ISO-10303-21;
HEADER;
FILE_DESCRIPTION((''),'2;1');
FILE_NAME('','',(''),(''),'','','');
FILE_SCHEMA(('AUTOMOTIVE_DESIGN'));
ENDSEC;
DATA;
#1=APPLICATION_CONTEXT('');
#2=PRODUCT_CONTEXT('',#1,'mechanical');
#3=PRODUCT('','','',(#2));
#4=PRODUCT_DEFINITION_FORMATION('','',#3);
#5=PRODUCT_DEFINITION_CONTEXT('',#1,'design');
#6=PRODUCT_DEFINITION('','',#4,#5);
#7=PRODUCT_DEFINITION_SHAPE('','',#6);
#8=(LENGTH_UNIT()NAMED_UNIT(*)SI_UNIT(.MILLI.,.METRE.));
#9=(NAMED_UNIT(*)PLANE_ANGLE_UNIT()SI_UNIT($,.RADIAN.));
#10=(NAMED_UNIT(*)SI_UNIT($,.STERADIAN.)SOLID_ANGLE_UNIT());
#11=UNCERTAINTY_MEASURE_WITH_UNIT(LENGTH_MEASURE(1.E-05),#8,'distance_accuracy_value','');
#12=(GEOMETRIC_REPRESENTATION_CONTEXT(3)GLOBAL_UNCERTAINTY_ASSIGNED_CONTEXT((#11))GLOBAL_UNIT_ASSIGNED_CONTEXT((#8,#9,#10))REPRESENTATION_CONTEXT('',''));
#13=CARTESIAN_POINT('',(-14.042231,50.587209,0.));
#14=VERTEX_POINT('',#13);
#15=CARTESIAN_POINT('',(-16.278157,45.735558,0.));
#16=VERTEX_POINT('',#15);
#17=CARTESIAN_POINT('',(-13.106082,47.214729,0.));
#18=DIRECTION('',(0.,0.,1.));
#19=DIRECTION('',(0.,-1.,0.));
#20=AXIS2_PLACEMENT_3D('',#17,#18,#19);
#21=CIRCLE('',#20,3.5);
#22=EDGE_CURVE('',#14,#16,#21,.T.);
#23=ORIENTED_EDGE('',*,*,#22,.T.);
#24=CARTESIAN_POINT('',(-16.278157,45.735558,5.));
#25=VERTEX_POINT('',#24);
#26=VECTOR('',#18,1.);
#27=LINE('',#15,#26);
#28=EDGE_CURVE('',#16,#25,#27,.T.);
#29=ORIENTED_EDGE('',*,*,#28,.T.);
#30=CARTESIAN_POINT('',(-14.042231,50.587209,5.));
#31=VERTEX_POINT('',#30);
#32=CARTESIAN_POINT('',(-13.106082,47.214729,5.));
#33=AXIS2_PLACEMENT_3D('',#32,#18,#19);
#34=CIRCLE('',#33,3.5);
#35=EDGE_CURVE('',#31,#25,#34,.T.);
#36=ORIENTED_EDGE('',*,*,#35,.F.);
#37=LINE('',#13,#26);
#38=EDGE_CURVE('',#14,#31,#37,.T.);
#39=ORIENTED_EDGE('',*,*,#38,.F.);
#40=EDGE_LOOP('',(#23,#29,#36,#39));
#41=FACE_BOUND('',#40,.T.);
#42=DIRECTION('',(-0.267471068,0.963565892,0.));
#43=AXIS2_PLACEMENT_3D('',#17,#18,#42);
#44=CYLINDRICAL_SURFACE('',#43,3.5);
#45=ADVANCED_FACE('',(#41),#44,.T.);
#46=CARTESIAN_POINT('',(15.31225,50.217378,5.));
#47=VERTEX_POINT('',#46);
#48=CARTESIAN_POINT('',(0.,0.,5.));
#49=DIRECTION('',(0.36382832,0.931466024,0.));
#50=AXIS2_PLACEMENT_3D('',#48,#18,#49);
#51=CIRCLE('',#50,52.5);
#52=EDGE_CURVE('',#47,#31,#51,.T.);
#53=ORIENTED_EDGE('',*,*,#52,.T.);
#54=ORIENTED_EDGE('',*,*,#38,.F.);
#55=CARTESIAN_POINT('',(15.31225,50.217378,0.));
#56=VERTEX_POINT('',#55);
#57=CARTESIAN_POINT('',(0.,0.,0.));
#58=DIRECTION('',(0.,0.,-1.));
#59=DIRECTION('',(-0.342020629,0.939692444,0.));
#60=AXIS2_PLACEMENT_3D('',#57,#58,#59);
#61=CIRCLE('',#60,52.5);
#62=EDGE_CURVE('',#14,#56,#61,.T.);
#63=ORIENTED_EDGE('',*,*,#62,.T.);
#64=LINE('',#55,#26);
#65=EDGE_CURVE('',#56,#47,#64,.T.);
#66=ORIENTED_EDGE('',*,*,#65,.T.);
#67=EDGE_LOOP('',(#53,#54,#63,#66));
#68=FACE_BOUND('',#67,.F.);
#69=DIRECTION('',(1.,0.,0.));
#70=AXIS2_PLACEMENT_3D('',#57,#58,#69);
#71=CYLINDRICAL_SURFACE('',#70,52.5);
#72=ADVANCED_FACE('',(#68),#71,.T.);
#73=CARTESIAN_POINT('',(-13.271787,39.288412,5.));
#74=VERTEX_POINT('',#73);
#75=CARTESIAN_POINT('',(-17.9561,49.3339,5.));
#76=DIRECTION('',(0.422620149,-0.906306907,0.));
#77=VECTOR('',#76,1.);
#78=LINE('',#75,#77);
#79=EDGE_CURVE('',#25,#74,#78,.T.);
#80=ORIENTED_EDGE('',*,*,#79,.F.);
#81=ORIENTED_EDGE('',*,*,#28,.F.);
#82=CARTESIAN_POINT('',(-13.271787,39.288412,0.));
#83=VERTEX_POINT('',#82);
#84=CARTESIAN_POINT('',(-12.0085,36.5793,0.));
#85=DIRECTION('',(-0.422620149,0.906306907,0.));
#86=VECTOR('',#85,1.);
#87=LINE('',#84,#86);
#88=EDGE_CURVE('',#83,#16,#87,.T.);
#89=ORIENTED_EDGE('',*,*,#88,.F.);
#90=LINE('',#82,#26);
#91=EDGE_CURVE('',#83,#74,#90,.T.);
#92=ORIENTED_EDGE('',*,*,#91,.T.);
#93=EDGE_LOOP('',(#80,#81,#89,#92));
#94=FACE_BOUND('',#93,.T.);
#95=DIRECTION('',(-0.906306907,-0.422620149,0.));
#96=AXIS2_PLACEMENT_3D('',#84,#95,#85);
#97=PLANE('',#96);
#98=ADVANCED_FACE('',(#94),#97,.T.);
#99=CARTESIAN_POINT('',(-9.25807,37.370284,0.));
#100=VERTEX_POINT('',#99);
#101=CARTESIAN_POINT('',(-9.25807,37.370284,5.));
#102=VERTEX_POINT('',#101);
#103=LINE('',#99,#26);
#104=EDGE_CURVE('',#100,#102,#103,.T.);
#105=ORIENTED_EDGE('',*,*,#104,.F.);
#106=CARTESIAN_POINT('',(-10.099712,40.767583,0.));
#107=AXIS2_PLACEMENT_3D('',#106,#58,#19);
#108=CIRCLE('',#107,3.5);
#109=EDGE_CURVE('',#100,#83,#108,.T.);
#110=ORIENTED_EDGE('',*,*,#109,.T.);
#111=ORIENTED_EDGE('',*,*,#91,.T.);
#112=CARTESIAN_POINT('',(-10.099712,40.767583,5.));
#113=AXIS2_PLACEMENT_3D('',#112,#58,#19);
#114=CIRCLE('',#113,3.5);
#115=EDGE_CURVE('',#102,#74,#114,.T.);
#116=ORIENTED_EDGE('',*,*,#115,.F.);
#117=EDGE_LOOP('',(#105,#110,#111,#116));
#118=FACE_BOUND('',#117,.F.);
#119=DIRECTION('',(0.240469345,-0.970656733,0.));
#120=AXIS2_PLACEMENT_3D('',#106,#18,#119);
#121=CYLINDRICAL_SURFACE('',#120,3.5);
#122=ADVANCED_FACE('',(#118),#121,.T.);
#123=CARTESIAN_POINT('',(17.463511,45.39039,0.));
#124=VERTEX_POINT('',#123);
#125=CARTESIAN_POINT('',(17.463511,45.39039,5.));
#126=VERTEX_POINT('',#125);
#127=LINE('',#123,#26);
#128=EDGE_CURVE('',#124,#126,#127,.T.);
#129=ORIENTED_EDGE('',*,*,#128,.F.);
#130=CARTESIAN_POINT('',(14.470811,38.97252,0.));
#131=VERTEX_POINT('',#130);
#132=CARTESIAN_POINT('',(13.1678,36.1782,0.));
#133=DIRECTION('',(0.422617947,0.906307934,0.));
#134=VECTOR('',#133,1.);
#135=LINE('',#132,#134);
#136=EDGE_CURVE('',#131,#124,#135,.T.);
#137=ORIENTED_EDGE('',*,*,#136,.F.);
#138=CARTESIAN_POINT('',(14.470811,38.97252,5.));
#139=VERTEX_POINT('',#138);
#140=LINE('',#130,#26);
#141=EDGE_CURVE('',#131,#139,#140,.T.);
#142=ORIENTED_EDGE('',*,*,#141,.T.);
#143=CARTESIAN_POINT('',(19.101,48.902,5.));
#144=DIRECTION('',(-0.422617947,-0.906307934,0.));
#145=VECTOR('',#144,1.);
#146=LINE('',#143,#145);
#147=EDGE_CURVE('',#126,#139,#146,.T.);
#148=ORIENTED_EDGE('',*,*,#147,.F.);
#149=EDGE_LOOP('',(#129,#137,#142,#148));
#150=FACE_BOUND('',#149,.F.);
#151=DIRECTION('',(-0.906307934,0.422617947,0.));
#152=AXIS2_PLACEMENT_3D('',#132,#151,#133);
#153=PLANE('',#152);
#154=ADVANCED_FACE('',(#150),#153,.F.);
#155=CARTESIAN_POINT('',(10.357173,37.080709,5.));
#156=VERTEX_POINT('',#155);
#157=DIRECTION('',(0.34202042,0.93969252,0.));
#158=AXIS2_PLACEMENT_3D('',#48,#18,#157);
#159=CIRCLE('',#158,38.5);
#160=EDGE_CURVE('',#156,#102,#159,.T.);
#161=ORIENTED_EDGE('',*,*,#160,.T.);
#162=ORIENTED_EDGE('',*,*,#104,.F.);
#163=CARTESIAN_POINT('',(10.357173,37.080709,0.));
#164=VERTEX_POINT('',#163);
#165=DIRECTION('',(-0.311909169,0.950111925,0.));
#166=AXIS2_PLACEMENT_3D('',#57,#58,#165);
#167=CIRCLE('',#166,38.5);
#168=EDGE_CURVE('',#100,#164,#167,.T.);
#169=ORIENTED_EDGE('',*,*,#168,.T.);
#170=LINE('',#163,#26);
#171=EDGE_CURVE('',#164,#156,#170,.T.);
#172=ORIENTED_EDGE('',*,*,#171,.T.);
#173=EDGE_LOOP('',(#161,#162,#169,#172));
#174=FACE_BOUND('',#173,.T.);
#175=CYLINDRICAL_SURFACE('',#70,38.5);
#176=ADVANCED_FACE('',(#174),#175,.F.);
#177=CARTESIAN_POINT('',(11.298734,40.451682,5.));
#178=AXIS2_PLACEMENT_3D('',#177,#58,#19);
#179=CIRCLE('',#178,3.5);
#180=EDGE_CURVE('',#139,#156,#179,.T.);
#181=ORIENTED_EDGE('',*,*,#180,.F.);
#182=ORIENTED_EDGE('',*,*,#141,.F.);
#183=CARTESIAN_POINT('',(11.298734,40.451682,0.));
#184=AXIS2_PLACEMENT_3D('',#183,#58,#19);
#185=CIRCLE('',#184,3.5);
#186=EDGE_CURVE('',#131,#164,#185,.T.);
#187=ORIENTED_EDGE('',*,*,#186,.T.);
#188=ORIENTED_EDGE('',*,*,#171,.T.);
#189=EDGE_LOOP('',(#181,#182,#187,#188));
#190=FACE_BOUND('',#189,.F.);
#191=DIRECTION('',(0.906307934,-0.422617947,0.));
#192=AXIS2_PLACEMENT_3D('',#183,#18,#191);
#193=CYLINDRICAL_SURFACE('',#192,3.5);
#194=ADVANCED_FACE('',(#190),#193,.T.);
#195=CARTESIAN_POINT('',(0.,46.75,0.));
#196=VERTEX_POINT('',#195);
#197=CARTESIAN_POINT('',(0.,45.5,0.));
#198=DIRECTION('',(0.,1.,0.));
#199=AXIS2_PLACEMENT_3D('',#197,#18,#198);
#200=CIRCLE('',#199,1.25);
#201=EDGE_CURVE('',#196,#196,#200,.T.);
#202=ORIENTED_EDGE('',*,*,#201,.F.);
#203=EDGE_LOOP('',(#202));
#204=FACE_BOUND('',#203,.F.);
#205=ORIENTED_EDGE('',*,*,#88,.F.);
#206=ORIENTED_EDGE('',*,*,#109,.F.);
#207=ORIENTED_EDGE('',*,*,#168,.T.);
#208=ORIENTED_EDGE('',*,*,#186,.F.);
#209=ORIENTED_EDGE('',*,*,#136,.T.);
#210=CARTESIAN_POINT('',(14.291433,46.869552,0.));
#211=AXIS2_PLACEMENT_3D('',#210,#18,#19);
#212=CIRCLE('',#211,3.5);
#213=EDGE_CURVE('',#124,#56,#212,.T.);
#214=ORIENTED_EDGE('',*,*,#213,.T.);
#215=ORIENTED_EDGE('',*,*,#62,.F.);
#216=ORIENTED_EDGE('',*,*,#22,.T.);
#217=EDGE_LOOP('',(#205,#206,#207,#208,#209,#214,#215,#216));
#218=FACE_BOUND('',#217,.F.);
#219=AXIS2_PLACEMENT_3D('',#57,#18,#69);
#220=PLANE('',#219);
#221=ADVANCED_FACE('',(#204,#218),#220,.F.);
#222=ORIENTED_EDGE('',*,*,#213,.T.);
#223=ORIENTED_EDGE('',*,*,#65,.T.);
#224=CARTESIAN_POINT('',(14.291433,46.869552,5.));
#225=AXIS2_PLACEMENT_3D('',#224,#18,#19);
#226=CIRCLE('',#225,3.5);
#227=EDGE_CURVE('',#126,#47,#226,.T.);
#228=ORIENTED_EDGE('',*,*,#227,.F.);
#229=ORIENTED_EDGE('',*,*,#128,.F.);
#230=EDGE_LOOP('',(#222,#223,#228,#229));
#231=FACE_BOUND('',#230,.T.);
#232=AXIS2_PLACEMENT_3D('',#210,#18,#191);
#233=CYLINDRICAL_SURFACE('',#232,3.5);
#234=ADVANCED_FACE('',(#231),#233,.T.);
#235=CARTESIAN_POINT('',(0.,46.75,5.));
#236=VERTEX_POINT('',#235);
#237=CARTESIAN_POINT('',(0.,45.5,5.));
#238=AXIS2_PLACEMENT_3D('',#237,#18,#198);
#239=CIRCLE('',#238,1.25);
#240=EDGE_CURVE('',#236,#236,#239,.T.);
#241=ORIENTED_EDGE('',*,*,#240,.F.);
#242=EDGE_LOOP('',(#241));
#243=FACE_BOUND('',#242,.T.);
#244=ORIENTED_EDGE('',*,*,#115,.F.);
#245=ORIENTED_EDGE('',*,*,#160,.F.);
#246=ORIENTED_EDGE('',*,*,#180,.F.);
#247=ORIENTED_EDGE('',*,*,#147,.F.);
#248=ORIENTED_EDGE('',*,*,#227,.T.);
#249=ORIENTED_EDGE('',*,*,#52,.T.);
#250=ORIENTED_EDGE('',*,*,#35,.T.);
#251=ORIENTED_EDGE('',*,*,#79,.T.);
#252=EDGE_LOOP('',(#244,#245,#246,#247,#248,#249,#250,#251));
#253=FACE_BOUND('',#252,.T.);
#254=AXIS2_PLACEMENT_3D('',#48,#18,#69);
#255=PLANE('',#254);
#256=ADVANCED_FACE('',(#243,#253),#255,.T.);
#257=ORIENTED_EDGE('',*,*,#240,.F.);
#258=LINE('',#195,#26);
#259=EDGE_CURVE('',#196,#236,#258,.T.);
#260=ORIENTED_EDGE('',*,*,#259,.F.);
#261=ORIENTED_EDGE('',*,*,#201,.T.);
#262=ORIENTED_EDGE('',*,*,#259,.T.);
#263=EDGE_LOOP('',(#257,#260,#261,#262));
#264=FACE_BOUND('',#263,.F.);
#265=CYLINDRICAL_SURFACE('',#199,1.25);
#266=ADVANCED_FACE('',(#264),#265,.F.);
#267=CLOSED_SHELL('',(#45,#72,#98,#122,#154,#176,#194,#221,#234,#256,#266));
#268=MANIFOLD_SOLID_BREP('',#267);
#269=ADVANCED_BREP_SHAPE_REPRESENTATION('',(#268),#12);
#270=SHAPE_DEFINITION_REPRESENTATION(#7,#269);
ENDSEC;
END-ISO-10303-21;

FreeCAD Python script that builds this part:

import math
import FreeCAD as App
import Part
import Sketcher
Q = App.Units.Quantity


def edges_at(feature, points):
    """Names of the edges that pass closest to the given points."""
    edges = feature.Shape.Edges
    near = lambda p: min(range(len(edges)), key=lambda i: edges[i].distToShape(Part.Vertex(*p))[0])
    return sorted({f"Edge{near(p) + 1}" for p in points})

doc = App.newDocument("Part")
body = doc.addObject("PartDesign::Body", "Body")

sketch1 = body.newObject("Sketcher::SketchObject", "Sketch")
sketch1.AttachmentSupport = (doc.getObject("XY_Plane"), [""])
sketch1.MapMode = "FlatFace"
sketch1.addGeometry([
    Part.LineSegment(App.Vector(13, 36, 0), App.Vector(19, 49, 0)),
    Part.ArcOfCircle(Part.Circle(App.Vector(0, 0, 0), App.Vector(0, 0, 1), 52), math.radians(69), math.radians(110)),
    Part.LineSegment(App.Vector(-18, 49, 0), App.Vector(-12, 37, 0)),
    Part.ArcOfCircle(Part.Circle(App.Vector(0, 0, 0), App.Vector(0, 0, 1), 38), math.radians(70), math.radians(108)),
], False)
sketch1.addConstraint([
    Sketcher.Constraint("Coincident", 0, 2, 1, 1),
    Sketcher.Constraint("Coincident", 1, 2, 2, 1),
    Sketcher.Constraint("Coincident", 2, 2, 3, 2),
    Sketcher.Constraint("Coincident", 3, 1, 0, 1),
    Sketcher.Constraint("Coincident", 1, 3, -1, 1),
    Sketcher.Constraint("Coincident", 3, 3, -1, 1),
    Sketcher.Constraint("Radius", 1, Q("52.5 mm")),
    Sketcher.Constraint("Radius", 3, Q("38.5 mm")),
    Sketcher.Constraint("Angle", 0, Q("65 deg")),
    Sketcher.Constraint("Angle", 2, Q("-65 deg")),
    Sketcher.Constraint("DistanceX", -1, 1, 0, 2, Q("19.101 mm")),
    Sketcher.Constraint("DistanceX", 1, 2, -1, 1, Q("17.956 mm")),
])
pad1 = body.newObject("PartDesign::Pad", "Pad")
pad1.Profile = sketch1
pad1.Length = 5

sketch2 = body.newObject("Sketcher::SketchObject", "Sketch001")
sketch2.AttachmentSupport = (doc.getObject("XY_Plane"), [""])
sketch2.MapMode = "FlatFace"
sketch2.addGeometry(Part.Circle(App.Vector(0, 45.5, 0), App.Vector(0, 0, 1), 1.2), False)
sketch2.addConstraint([
    Sketcher.Constraint("PointOnObject", 0, 3, -2),
    Sketcher.Constraint("Diameter", 0, Q("2.5 mm")),
    Sketcher.Constraint("DistanceY", -1, 1, 0, 3, Q("45.5 mm")),
])
doc.recompute()
hole = body.newObject("PartDesign::Hole", "Hole")
hole.Profile = sketch2
hole.ThreadType = "None"
hole.Diameter = 2.5
hole.DepthType = "ThroughAll"
hole.Reversed = True
doc.recompute()

fillet = body.newObject("PartDesign::Fillet", "Fillet")
fillet.Base = (hole, edges_at(hole, [
    (19.101, 48.902, 2.5),
    (13.168, 36.178, 2.5),
    (-12.008, 36.579, 2.5),
    (-17.956, 49.334, 2.5),
]))
fillet.Radius = 3.5

doc.recompute()
